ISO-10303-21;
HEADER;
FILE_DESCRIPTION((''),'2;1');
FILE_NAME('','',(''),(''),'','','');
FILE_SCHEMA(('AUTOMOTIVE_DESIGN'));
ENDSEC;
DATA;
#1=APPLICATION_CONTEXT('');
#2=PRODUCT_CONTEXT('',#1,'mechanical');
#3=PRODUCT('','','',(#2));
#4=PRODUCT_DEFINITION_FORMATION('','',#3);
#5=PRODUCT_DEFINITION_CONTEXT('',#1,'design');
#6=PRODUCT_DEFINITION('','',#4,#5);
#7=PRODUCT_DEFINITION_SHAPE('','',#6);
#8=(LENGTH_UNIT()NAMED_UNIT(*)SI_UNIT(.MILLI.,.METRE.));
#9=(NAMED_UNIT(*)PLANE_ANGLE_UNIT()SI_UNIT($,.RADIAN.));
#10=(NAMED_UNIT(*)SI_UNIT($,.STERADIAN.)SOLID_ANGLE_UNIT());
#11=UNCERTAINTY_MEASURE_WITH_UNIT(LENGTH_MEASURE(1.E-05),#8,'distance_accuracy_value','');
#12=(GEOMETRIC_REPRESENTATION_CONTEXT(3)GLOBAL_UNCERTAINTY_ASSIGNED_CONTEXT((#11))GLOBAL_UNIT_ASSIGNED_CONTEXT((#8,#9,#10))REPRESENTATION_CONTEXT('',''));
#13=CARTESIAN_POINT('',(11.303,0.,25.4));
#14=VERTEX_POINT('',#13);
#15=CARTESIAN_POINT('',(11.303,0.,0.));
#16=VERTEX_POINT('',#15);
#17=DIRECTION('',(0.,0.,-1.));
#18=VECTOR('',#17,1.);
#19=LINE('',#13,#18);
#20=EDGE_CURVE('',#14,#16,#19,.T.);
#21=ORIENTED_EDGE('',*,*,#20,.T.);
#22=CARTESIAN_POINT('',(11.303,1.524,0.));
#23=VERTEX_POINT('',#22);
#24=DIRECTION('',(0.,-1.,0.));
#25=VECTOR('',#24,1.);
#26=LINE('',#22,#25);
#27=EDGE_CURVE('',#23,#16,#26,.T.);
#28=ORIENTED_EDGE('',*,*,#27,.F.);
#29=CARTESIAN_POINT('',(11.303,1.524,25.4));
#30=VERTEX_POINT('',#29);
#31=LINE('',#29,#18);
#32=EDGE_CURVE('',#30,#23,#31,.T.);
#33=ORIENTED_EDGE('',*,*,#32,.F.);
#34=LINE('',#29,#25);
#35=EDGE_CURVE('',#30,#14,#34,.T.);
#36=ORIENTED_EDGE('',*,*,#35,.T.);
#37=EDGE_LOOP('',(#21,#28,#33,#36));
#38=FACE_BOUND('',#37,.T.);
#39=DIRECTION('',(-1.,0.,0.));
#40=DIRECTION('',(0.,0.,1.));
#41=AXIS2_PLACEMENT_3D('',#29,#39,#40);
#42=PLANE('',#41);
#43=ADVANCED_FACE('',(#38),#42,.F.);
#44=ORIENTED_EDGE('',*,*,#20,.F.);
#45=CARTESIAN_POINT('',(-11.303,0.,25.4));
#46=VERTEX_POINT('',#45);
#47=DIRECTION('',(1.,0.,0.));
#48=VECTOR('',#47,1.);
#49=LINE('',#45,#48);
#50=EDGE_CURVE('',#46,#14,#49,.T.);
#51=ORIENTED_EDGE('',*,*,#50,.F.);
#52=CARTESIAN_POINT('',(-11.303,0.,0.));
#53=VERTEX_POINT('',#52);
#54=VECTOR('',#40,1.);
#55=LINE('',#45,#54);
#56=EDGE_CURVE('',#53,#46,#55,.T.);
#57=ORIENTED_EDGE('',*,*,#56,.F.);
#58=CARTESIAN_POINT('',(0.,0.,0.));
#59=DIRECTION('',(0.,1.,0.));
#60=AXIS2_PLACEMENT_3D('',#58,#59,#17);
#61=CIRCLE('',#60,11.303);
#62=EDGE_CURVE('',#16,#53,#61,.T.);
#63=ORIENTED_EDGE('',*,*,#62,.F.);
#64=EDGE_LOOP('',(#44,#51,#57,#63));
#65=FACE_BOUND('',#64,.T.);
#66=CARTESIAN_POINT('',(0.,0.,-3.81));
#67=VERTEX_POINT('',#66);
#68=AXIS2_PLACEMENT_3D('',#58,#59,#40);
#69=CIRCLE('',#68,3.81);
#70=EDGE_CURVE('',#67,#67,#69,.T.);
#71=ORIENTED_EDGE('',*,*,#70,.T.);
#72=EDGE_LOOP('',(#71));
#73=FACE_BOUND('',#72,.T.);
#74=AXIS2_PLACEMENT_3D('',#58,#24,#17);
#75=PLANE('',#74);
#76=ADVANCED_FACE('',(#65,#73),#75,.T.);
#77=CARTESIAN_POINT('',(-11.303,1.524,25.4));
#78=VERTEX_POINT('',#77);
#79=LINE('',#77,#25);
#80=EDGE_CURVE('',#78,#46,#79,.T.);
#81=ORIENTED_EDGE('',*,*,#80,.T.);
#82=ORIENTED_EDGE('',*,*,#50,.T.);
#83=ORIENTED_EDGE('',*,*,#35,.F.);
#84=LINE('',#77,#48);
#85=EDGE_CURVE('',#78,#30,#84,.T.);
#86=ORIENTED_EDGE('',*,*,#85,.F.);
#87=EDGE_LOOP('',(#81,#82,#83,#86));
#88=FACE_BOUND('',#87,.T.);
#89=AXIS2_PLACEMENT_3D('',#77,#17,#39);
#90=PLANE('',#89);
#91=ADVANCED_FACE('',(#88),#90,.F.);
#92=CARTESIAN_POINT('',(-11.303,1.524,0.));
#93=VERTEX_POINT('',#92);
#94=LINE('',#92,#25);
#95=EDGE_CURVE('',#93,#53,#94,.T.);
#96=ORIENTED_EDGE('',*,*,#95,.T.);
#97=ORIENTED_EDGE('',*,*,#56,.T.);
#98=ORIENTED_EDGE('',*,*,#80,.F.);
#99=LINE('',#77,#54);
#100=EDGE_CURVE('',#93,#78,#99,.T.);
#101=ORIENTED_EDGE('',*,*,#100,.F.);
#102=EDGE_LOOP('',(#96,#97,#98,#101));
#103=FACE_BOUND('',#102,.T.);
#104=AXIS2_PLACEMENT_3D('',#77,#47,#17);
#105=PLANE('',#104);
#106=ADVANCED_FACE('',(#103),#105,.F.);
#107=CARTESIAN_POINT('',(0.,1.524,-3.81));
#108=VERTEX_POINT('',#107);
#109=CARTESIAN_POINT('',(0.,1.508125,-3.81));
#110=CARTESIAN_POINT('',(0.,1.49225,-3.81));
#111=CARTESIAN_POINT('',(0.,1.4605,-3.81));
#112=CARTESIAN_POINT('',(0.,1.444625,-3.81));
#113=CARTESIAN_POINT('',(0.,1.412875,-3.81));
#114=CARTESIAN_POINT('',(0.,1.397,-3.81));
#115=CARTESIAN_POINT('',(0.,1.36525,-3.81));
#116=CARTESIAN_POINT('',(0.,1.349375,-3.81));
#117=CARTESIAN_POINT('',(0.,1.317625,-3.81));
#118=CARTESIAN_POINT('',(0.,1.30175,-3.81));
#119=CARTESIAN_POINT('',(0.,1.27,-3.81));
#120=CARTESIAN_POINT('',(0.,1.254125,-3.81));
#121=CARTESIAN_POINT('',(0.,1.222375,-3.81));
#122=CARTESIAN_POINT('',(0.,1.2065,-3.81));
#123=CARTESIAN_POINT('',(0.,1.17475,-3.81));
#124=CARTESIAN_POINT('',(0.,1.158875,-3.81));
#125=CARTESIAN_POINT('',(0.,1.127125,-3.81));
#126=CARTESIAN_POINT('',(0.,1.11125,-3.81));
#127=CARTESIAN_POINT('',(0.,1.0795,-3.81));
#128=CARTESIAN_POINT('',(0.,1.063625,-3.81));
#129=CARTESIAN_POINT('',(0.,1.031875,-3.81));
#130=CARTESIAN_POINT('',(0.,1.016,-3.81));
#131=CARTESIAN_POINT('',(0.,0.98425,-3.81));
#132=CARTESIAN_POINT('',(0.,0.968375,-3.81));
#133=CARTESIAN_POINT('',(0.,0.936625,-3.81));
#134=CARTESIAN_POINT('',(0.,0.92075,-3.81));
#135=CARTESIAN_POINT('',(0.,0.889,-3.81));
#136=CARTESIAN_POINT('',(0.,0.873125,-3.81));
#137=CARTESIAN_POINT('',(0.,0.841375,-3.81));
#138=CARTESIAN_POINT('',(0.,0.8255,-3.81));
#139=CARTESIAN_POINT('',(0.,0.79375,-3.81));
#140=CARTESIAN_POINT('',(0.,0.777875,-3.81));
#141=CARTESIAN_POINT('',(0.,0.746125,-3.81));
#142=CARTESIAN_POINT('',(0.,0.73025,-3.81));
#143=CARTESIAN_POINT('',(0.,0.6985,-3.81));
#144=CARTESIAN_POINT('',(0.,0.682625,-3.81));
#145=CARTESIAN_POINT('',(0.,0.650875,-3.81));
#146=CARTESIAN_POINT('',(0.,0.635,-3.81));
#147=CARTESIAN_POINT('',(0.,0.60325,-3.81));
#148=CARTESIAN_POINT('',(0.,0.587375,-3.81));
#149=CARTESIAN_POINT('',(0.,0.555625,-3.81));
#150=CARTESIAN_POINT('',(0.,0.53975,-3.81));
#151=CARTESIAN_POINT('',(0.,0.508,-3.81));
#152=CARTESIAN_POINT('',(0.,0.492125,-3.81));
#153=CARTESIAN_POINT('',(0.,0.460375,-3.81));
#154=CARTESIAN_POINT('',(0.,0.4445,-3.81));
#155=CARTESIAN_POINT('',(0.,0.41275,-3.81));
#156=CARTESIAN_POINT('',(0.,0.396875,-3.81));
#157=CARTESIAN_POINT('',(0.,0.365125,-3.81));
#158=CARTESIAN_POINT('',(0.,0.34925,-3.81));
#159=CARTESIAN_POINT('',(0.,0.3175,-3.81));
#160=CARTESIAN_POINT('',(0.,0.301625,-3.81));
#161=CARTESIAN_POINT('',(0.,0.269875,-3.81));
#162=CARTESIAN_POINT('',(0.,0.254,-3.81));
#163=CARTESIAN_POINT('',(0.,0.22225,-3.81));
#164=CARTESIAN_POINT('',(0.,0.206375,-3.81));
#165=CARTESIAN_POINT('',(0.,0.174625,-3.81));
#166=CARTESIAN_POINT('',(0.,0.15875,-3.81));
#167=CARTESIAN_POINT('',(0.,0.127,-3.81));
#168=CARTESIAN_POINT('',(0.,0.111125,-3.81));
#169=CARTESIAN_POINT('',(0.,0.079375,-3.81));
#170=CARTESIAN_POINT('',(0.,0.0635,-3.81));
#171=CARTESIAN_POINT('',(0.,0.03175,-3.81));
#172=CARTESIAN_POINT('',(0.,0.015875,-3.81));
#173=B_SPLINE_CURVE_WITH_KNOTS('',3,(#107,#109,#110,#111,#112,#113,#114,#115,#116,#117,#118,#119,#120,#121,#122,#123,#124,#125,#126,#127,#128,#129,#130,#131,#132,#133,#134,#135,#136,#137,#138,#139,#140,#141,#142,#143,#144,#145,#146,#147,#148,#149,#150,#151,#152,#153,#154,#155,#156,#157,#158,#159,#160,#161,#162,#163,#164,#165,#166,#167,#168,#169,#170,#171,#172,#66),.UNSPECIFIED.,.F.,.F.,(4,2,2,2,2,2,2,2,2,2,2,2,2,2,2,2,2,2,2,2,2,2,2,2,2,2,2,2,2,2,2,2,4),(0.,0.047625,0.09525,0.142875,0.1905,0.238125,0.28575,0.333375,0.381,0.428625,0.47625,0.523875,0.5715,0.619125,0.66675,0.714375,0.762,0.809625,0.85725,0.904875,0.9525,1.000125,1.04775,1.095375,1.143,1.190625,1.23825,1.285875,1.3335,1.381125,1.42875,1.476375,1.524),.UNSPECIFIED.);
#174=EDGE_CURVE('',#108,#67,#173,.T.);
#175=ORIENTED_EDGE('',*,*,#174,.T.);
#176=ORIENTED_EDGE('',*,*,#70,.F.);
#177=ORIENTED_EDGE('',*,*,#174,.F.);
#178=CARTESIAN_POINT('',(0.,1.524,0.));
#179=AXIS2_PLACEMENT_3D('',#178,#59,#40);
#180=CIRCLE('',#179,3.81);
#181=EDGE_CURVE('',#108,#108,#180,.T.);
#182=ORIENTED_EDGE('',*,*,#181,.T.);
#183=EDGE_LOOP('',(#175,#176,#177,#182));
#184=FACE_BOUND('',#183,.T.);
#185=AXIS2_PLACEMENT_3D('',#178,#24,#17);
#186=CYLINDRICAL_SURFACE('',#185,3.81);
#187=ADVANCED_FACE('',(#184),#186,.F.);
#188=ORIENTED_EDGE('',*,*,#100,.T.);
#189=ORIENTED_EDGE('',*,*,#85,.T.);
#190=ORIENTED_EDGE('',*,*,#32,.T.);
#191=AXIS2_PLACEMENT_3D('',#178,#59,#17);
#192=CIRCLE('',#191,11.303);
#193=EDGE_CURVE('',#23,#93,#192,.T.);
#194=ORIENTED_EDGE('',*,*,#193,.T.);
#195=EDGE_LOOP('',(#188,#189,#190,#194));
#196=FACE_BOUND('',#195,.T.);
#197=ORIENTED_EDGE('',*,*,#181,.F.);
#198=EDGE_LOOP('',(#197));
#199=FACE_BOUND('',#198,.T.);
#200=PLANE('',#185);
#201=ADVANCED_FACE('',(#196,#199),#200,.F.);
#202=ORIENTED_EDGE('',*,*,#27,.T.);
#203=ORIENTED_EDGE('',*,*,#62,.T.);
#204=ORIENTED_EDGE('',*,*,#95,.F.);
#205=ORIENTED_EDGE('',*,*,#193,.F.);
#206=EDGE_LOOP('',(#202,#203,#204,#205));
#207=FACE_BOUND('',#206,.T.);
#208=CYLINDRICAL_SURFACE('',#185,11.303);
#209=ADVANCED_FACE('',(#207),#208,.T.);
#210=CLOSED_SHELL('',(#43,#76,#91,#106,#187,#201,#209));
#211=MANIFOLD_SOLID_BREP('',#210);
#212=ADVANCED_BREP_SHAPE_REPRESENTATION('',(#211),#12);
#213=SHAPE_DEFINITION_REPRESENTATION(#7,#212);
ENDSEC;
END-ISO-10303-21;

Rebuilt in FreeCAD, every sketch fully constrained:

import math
import FreeCAD as App
import Part
import Sketcher
Q = App.Units.Quantity

doc = App.newDocument("Part")
params = doc.addObject("Spreadsheet::Sheet", "Params")
for row, (alias, value) in enumerate([
    ("sketch1_diameter", "0.3 in"),
    ("sketch1_height", "1 in"),
    ("sketch1_radius", "0.445 in"),
    ("pad1_length", "0.06 in"),
], start=1):
    params.set(f"A{row}", alias)
    params.set(f"B{row}", "=" + value)
    params.setAlias(f"B{row}", alias)

body = doc.addObject("PartDesign::Body", "Body")

sketch1 = body.newObject("Sketcher::SketchObject", "Sketch")
sketch1.AttachmentSupport = (doc.getObject("XZ_Plane"), [""])
sketch1.MapMode = "FlatFace"
sketch1.addGeometry([
    Part.LineSegment(App.Vector(-11.3, 25.4, 0), App.Vector(11.3, 25.4, 0)),
    Part.LineSegment(App.Vector(11.3, 25.4, 0), App.Vector(11.3, 0, 0)),
    Part.ArcOfCircle(Part.Circle(App.Vector(0, 0, 0), App.Vector(0, 0, 1), 11.3), math.radians(180), math.radians(360)),
    Part.LineSegment(App.Vector(-11.3, 0, 0), App.Vector(-11.3, 25.4, 0)),
    Part.Circle(App.Vector(0, 0, 0), App.Vector(0, 0, 1), 3.8),
], False)
sketch1.addConstraint([
    Sketcher.Constraint("Coincident", 0, 2, 1, 1),
    Sketcher.Constraint("Tangent", 1, 2, 2, 2),
    Sketcher.Constraint("Tangent", 2, 1, 3, 1),
    Sketcher.Constraint("Coincident", 3, 2, 0, 1),
    Sketcher.Constraint("Horizontal", 0),
    Sketcher.Constraint("Vertical", 1),
    Sketcher.Constraint("Vertical", 3),
    Sketcher.Constraint("Coincident", 2, 3, -1, 1),
    Sketcher.Constraint("Coincident", 4, 3, -1, 1),
    Sketcher.Constraint("Diameter", 4, Q("0.3 in")),
    Sketcher.Constraint("DistanceY", 1, 2, 1, 1, Q("1 in")),
    Sketcher.Constraint("Radius", 2, Q("0.445 in")),
])
sketch1.setExpression("Constraints[9]", "Params.sketch1_diameter")
sketch1.setExpression("Constraints[10]", "Params.sketch1_height")
sketch1.setExpression("Constraints[11]", "Params.sketch1_radius")
pad1 = body.newObject("PartDesign::Pad", "Pad")
pad1.Profile = sketch1
pad1.setExpression("Length", "Params.pad1_length")
pad1.Reversed = True

doc.recompute()
